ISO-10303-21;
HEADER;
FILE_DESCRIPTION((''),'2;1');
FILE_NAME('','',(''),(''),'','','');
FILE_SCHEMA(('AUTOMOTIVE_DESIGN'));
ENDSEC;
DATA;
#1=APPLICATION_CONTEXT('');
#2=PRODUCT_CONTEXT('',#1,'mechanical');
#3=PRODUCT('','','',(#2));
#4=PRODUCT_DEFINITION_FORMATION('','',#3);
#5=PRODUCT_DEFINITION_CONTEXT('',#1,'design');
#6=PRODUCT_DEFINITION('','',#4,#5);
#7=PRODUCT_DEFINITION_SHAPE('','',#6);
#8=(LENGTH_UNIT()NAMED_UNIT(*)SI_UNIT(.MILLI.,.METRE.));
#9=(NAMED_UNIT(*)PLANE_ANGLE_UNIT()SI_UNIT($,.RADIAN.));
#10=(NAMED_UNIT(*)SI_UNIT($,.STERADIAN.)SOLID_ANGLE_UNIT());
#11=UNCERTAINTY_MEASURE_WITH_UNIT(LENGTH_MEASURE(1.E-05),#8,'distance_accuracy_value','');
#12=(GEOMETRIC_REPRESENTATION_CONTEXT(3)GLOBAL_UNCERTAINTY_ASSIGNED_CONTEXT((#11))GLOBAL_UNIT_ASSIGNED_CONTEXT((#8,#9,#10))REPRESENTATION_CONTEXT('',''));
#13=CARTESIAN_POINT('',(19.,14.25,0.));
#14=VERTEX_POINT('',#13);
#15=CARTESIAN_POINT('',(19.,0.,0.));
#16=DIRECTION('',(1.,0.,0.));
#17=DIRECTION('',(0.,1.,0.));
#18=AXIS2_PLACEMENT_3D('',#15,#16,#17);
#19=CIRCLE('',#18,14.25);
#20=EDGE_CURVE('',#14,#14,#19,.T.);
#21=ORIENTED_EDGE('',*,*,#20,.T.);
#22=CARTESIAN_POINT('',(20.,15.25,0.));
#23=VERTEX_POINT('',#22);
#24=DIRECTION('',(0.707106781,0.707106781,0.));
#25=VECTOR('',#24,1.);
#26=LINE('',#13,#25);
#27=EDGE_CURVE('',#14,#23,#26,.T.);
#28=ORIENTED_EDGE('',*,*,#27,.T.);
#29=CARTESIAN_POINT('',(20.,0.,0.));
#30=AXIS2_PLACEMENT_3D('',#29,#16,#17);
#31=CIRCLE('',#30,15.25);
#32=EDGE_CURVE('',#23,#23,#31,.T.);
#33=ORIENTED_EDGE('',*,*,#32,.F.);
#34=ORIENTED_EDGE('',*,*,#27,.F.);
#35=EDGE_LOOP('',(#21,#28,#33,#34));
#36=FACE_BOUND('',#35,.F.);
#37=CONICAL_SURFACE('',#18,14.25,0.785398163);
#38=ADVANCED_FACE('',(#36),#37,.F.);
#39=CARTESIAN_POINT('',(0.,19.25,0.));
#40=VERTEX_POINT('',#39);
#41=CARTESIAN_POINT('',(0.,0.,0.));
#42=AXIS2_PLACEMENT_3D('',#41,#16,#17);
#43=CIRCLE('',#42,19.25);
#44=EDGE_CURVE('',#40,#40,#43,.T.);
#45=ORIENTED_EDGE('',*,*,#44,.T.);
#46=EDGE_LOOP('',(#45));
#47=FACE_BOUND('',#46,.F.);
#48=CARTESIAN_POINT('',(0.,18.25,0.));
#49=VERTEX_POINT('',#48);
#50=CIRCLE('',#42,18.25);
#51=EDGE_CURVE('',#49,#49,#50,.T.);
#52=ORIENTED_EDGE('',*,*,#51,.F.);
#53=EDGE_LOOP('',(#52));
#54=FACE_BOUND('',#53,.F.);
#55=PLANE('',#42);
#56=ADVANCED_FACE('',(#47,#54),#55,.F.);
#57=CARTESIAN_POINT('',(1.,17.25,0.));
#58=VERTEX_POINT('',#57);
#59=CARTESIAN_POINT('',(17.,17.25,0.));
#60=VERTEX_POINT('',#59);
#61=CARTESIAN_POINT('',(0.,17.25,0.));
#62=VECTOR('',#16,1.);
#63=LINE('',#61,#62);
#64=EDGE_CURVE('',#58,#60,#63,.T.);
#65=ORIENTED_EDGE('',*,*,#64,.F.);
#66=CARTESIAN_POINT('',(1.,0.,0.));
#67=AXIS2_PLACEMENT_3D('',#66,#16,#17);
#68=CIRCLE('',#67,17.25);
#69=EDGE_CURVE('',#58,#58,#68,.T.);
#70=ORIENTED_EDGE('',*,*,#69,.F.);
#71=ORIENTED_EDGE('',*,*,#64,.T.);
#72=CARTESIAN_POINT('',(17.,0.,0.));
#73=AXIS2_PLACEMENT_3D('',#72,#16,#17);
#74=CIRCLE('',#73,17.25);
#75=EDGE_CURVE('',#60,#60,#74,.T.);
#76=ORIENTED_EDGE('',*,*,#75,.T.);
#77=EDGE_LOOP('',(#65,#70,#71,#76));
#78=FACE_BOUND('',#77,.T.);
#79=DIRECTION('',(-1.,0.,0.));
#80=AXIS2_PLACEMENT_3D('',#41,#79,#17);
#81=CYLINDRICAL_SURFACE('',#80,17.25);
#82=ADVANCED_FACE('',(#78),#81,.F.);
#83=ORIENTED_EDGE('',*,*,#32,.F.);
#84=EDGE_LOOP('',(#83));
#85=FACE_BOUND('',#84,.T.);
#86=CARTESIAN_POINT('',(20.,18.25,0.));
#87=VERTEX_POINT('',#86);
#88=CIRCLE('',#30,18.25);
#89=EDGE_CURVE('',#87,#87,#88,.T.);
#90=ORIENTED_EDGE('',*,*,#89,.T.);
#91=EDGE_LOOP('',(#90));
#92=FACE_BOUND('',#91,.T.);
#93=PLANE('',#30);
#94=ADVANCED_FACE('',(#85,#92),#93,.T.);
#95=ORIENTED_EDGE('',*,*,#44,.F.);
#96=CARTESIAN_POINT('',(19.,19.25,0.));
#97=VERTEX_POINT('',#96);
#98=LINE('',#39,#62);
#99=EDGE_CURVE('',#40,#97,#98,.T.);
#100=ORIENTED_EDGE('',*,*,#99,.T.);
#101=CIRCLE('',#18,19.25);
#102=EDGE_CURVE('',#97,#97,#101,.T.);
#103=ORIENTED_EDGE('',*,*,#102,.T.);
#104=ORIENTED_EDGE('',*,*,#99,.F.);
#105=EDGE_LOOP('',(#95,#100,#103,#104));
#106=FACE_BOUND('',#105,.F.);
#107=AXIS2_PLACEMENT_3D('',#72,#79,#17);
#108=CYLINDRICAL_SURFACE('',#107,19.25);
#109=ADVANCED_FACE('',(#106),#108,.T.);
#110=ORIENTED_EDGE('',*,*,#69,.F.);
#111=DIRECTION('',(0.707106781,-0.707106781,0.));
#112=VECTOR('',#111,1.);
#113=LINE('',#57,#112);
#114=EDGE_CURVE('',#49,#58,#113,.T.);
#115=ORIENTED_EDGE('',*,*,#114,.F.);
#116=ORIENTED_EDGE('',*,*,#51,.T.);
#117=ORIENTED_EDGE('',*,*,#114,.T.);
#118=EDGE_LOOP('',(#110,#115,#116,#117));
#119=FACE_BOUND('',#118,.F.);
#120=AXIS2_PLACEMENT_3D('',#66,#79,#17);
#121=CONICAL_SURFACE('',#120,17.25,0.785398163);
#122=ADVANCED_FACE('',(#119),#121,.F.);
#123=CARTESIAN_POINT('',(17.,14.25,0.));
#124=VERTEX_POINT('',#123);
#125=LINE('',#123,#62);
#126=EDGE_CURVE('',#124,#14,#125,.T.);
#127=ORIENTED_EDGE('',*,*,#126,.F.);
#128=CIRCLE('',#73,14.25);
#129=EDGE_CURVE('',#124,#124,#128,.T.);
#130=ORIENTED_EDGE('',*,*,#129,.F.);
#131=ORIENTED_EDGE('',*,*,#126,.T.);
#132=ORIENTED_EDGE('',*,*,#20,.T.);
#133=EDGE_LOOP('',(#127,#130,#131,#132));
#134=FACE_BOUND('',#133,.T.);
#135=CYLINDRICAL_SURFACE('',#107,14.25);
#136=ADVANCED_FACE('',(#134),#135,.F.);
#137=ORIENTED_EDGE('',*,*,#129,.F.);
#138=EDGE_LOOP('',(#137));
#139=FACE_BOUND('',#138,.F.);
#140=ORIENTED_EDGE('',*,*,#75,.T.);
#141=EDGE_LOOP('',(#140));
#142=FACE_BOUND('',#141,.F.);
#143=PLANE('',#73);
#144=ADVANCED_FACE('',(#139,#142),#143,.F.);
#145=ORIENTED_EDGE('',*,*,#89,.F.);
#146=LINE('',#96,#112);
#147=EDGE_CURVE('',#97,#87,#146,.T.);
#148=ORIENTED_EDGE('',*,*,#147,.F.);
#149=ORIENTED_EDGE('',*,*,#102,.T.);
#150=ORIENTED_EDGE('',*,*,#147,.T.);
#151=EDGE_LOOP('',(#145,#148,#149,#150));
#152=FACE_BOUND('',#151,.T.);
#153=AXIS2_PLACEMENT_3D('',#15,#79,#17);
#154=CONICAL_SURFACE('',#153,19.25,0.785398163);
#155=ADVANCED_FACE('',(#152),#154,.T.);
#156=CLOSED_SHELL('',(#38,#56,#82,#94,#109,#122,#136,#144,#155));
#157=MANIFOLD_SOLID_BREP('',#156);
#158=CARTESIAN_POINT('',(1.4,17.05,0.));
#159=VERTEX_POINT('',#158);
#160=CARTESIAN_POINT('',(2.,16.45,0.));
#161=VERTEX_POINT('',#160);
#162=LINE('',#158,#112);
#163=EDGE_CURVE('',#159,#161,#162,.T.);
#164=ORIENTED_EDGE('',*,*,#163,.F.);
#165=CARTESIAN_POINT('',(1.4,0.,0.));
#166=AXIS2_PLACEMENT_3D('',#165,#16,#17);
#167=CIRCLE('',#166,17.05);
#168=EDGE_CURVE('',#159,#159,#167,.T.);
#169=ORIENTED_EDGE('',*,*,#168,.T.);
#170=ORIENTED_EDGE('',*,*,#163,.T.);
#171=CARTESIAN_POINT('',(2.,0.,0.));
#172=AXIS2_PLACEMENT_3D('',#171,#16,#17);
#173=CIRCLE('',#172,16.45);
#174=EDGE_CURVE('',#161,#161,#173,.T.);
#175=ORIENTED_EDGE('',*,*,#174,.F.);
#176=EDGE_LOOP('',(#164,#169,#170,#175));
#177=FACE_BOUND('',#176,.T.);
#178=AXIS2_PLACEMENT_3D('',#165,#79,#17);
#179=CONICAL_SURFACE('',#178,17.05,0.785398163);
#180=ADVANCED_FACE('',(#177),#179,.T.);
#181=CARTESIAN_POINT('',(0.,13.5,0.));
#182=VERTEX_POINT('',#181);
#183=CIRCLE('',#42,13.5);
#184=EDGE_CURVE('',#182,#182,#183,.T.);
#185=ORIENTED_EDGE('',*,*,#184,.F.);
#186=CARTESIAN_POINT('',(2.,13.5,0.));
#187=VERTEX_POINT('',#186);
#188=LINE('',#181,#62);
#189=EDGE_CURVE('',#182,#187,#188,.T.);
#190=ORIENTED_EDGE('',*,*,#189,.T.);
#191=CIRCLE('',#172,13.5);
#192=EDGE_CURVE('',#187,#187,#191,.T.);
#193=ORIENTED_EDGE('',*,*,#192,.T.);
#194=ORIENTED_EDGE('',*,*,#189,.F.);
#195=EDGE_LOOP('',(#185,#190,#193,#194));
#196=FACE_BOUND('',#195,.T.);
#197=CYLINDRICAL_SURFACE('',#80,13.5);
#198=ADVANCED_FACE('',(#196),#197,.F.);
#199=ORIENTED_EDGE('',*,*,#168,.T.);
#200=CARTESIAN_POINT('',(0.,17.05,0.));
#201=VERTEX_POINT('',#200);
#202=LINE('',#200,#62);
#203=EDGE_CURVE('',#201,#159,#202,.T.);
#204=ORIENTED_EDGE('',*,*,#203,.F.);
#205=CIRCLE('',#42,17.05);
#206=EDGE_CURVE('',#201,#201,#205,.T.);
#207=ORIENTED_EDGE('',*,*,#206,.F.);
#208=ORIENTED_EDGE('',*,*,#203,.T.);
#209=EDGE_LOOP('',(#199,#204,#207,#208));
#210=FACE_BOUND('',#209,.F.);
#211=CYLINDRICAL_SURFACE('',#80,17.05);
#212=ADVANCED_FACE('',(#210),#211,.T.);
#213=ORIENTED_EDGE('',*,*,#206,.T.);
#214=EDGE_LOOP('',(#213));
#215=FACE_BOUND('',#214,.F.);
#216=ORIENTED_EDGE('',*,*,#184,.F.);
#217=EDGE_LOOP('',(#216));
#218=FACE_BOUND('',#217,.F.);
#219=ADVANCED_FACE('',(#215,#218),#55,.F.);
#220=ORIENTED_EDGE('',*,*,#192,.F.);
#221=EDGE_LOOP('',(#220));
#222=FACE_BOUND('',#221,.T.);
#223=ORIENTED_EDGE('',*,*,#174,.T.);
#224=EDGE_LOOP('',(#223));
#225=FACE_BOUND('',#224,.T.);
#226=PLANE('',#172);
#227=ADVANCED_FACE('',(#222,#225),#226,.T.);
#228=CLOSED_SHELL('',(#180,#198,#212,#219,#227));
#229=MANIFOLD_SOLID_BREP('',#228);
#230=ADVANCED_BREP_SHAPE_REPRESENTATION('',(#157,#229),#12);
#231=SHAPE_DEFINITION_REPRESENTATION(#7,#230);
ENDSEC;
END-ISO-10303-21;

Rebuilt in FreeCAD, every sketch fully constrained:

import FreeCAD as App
import Part
import Sketcher

V = App.Vector
Q = App.Units.Quantity


def edges_at(feature, points):
    """Names of the edges that pass closest to the given points."""
    edges = feature.Shape.Edges
    near = lambda p: min(range(len(edges)), key=lambda i: edges[i].distToShape(Part.Vertex(*p))[0])
    return sorted({f"Edge{near(p) + 1}" for p in points})

doc = App.newDocument("Part")
params = doc.addObject("Spreadsheet::Sheet", "Params")
for row, (alias, value) in enumerate([
    ("sketch1_diameter", "38.5 mm"),
    ("sketch1_diameter2", "34.5 mm"),
    ("pad1_length", "17 mm"),
    ("sketch2_diameter", "38.5 mm"),
    ("sketch2_diameter2", "28.5 mm"),
    ("pad2_length", "3 mm"),
    ("chamfer_size", "1 mm"),
    ("sketch3_diameter", "27 mm"),
    ("sketch3_diameter2", "34.1 mm"),
    ("pad3_length", "2 mm"),
    ("chamfer2_size", "0.6 mm"),
], start=1):
    params.set(f"A{row}", alias)
    params.set(f"B{row}", "=" + value)
    params.setAlias(f"B{row}", alias)

body = doc.addObject("PartDesign::Body", "Body")

# Sketch on YZ plane
sketch1 = doc.addObject("Sketcher::SketchObject", "Sketch")
body.addObject(sketch1)
sketch1.AttachmentSupport = (doc.YZ_Plane, [""])
sketch1.MapMode = "FlatFace"
sketch1.addGeometry([
    Part.Circle(V(0, 0, 0), V(0, 0, 1), 19),
    Part.Circle(V(0, 0, 0), V(0, 0, 1), 17),
], False)
sketch1.addConstraint([
    Sketcher.Constraint("Coincident", 0, 3, -1, 1),
    Sketcher.Constraint("Coincident", 1, 3, -1, 1),
    Sketcher.Constraint("Diameter", 0, Q("38.5 mm")),
    Sketcher.Constraint("Diameter", 1, Q("34.5 mm")),
])
sketch1.setExpression("Constraints[2]", "Params.sketch1_diameter")
sketch1.setExpression("Constraints[3]", "Params.sketch1_diameter2")
pad1 = doc.addObject("PartDesign::Pad", "Pad")
body.addObject(pad1)
pad1.Profile = sketch1
pad1.setExpression("Length", "Params.pad1_length")

# Sketch on YZ plane
sketch2 = doc.addObject("Sketcher::SketchObject", "Sketch001")
body.addObject(sketch2)
sketch2.AttachmentSupport = (doc.YZ_Plane, [""])
sketch2.MapMode = "FlatFace"
sketch2.AttachmentOffset = App.Placement(V(0, 0, 17), App.Rotation())
sketch2.addGeometry([
    Part.Circle(V(0, 0, 0), V(0, 0, 1), 19),
    Part.Circle(V(0, 0, 0), V(0, 0, 1), 14),
], False)
sketch2.addConstraint([
    Sketcher.Constraint("Coincident", 0, 3, -1, 1),
    Sketcher.Constraint("Coincident", 1, 3, -1, 1),
    Sketcher.Constraint("Diameter", 0, Q("38.5 mm")),
    Sketcher.Constraint("Diameter", 1, Q("28.5 mm")),
])
sketch2.setExpression("Constraints[2]", "Params.sketch2_diameter")
sketch2.setExpression("Constraints[3]", "Params.sketch2_diameter2")
pad2 = doc.addObject("PartDesign::Pad", "Pad001")
body.addObject(pad2)
pad2.Profile = sketch2
pad2.setExpression("Length", "Params.pad2_length")
doc.recompute()

chamfer = doc.addObject("PartDesign::Chamfer", "Chamfer")
body.addObject(chamfer)
chamfer.Base = (pad2, edges_at(pad2, [(20, -19.25, 0), (20, -14.25, 0), (0, -17.25, 0)]))
chamfer.setExpression("Size", "Params.chamfer_size")
body2 = doc.addObject("PartDesign::Body", "Body001")

# Sketch on YZ plane
sketch3 = doc.addObject("Sketcher::SketchObject", "Sketch002")
body2.addObject(sketch3)
sketch3.AttachmentSupport = (doc.getObject("YZ_Plane001"), [""])
sketch3.MapMode = "FlatFace"
sketch3.addGeometry([
    Part.Circle(V(0, 0, 0), V(0, 0, 1), 17),
    Part.Circle(V(0, 0, 0), V(0, 0, 1), 14),
], False)
sketch3.addConstraint([
    Sketcher.Constraint("Coincident", 0, 3, -1, 1),
    Sketcher.Constraint("Coincident", 1, 3, -1, 1),
    Sketcher.Constraint("Diameter", 1, Q("27 mm")),
    Sketcher.Constraint("Diameter", 0, Q("34.1 mm")),
])
sketch3.setExpression("Constraints[2]", "Params.sketch3_diameter")
sketch3.setExpression("Constraints[3]", "Params.sketch3_diameter2")
pad3 = doc.addObject("PartDesign::Pad", "Pad002")
body2.addObject(pad3)
pad3.Profile = sketch3
pad3.setExpression("Length", "Params.pad3_length")
doc.recompute()

chamfer2 = doc.addObject("PartDesign::Chamfer", "Chamfer001")
body2.addObject(chamfer2)
chamfer2.Base = (pad3, edges_at(pad3, [(2, -17.05, 0)]))
chamfer2.setExpression("Size", "Params.chamfer2_size")

doc.recompute()
